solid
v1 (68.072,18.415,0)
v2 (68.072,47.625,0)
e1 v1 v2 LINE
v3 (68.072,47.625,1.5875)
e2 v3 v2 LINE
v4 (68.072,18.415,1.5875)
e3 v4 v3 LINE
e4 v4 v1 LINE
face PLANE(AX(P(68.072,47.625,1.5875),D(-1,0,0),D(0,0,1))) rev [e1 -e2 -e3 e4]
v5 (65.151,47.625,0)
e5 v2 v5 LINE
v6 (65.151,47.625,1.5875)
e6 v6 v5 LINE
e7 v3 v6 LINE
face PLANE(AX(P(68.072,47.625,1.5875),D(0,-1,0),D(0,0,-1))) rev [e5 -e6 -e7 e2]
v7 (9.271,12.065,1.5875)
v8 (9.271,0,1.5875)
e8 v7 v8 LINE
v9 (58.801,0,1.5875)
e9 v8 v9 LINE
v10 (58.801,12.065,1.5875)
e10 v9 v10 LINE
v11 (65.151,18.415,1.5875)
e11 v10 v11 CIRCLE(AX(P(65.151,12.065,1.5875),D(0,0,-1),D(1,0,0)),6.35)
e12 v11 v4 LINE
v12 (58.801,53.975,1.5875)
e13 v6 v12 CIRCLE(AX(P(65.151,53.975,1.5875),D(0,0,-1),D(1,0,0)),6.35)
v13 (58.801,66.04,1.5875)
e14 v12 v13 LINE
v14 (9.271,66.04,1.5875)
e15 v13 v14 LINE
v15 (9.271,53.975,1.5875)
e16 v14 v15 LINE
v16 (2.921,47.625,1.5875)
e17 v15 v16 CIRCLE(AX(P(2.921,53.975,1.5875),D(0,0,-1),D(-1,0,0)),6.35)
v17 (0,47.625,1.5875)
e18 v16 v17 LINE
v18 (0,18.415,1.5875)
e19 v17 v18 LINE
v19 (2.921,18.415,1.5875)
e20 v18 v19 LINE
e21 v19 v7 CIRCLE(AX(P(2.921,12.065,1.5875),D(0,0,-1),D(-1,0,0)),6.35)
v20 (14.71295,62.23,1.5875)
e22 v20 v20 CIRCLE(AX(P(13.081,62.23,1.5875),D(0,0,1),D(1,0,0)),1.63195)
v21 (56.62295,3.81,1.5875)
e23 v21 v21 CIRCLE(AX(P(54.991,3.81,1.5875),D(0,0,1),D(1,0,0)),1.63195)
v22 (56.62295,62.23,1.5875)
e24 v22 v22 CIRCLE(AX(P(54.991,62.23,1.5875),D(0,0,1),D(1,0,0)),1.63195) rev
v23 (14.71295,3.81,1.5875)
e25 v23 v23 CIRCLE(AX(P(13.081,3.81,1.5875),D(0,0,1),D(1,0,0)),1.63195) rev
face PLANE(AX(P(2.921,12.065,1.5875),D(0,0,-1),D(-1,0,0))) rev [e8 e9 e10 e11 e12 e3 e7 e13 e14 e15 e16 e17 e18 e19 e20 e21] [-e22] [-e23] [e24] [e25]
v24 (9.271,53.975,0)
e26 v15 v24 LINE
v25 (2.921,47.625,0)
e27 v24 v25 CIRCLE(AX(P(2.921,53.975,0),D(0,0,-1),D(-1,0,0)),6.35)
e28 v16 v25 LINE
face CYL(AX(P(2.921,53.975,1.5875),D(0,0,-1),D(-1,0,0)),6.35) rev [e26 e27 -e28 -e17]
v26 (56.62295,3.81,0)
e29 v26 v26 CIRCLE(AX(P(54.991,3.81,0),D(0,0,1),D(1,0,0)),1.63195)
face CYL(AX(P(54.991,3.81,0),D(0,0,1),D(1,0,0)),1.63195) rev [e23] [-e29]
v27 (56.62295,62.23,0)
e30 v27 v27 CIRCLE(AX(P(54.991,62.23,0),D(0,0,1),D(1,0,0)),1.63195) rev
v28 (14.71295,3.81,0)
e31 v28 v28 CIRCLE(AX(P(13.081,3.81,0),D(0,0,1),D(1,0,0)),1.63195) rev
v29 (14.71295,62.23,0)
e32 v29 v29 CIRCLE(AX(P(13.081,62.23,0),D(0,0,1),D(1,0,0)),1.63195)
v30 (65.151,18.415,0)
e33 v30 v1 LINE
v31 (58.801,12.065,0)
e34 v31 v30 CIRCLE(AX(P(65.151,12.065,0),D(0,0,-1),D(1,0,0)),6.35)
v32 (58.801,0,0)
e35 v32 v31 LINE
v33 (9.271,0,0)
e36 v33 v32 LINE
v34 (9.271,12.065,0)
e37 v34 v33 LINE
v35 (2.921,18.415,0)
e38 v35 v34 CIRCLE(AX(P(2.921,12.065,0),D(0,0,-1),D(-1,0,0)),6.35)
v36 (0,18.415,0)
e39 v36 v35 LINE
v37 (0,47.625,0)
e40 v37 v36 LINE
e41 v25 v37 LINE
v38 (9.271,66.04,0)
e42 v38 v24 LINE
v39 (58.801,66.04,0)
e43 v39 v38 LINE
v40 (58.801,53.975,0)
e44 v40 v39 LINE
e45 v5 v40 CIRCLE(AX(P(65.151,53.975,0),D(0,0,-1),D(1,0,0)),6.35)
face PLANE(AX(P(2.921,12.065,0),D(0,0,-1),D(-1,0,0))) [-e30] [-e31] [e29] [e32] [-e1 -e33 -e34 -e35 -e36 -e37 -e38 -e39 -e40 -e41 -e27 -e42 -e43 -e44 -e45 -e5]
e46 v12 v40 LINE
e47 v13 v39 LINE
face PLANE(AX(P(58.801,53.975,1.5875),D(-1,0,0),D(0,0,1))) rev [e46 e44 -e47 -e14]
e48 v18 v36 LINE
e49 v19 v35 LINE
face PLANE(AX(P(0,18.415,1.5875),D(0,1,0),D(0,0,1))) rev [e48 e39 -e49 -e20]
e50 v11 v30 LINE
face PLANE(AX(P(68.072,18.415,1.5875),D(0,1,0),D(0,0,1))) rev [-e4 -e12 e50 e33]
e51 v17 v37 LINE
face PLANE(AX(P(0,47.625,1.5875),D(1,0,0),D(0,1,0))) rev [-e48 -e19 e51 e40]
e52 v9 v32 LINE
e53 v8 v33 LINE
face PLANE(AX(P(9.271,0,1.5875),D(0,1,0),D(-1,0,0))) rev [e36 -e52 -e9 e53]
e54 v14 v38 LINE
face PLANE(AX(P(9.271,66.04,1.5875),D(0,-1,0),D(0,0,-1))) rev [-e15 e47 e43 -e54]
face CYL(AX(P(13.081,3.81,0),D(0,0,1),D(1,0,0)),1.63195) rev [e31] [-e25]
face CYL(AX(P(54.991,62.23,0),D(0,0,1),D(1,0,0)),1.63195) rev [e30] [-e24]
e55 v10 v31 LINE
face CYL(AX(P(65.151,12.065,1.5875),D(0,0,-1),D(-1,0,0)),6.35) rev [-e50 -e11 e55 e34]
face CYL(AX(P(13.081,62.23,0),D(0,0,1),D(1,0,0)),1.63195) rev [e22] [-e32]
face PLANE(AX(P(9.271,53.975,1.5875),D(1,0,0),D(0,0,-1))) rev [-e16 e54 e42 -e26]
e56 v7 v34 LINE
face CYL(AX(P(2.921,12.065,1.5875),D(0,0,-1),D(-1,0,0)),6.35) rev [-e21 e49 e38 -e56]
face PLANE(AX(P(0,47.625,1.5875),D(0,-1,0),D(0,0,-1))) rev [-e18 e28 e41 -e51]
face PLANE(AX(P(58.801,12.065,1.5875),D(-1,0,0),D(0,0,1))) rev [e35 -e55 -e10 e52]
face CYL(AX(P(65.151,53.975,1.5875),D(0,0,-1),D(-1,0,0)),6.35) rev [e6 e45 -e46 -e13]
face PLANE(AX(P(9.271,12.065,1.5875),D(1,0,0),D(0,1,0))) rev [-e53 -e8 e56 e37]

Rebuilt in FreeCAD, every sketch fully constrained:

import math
import FreeCAD as App
import Part
import Sketcher

V = App.Vector
Q = App.Units.Quantity

doc = App.newDocument("Part")
body = doc.addObject("PartDesign::Body", "Body")

# Sketch on XY plane
sketch1 = doc.addObject("Sketcher::SketchObject", "Sketch")
body.addObject(sketch1)
sketch1.AttachmentSupport = (doc.XY_Plane, [""])
sketch1.MapMode = "FlatFace"
sketch1.addGeometry([
    Part.LineSegment(V(0, 47.6, 0), V(0, 18.4, 0)),  # 0
    Part.LineSegment(V(0, 18.4, 0), V(2.9, 18.4, 0)),  # 1
    Part.ArcOfCircle(Part.Circle(V(2.9, 12.1, 0), V(0, 0, 1), 6.3), math.radians(0), math.radians(90)),  # 2
    Part.LineSegment(V(9.3, 12.1, 0), V(9.3, 0, 0)),  # 3
    Part.LineSegment(V(9.3, 0, 0), V(58.8, 0, 0)),  # 4
    Part.LineSegment(V(58.8, 0, 0), V(58.8, 12.1, 0)),  # 5
    Part.ArcOfCircle(Part.Circle(V(65.2, 12.1, 0), V(0, 0, 1), 6.3), math.radians(90), math.radians(180)),  # 6
    Part.LineSegment(V(65.2, 18.4, 0), V(68.1, 18.4, 0)),  # 7
    Part.LineSegment(V(68.1, 18.4, 0), V(68.1, 47.6, 0)),  # 8
    Part.LineSegment(V(68.1, 47.6, 0), V(65.2, 47.6, 0)),  # 9
    Part.ArcOfCircle(Part.Circle(V(65.2, 54, 0), V(0, 0, 1), 6.3), math.radians(180), math.radians(270)),  # 10
    Part.LineSegment(V(58.8, 54, 0), V(58.8, 66, 0)),  # 11
    Part.LineSegment(V(58.8, 66, 0), V(9.3, 66, 0)),  # 12
    Part.LineSegment(V(9.3, 66, 0), V(9.3, 54, 0)),  # 13
    Part.ArcOfCircle(Part.Circle(V(2.9, 54, 0), V(0, 0, 1), 6.3), math.radians(-90), math.radians(0)),  # 14
    Part.LineSegment(V(2.9, 47.6, 0), V(0, 47.6, 0)),  # 15
], False)
sketch1.addConstraint([
    Sketcher.Constraint("Coincident", 0, 2, 1, 1),
    Sketcher.Constraint("Tangent", 1, 2, 2, 2),
    Sketcher.Constraint("Tangent", 2, 1, 3, 1),
    Sketcher.Constraint("Coincident", 3, 2, 4, 1),
    Sketcher.Constraint("Coincident", 4, 2, 5, 1),
    Sketcher.Constraint("Tangent", 5, 2, 6, 2),
    Sketcher.Constraint("Tangent", 6, 1, 7, 1),
    Sketcher.Constraint("Coincident", 7, 2, 8, 1),
    Sketcher.Constraint("Coincident", 8, 2, 9, 1),
    Sketcher.Constraint("Tangent", 9, 2, 10, 2),
    Sketcher.Constraint("Tangent", 10, 1, 11, 1),
    Sketcher.Constraint("Coincident", 11, 2, 12, 1),
    Sketcher.Constraint("Coincident", 12, 2, 13, 1),
    Sketcher.Constraint("Tangent", 13, 2, 14, 2),
    Sketcher.Constraint("Tangent", 14, 1, 15, 1),
    Sketcher.Constraint("Coincident", 15, 2, 0, 1),
    Sketcher.Constraint("Vertical", 0),
    Sketcher.Constraint("Horizontal", 1),
    Sketcher.Constraint("Vertical", 3),
    Sketcher.Constraint("Horizontal", 4),
    Sketcher.Constraint("Vertical", 5),
    Sketcher.Constraint("Horizontal", 7),
    Sketcher.Constraint("Vertical", 8),
    Sketcher.Constraint("Horizontal", 9),
    Sketcher.Constraint("Vertical", 11),
    Sketcher.Constraint("Horizontal", 12),
    Sketcher.Constraint("Vertical", 13),
    Sketcher.Constraint("Horizontal", 15),
    Sketcher.Constraint("Equal", 2, 6),
    Sketcher.Constraint("Equal", 6, 10),
    Sketcher.Constraint("Equal", 10, 14),
    Sketcher.Constraint("PointOnObject", 0, 2, -2),
    Sketcher.Constraint("PointOnObject", 3, 2, -1),
    Sketcher.Constraint("Horizontal", 2, 3, 6, 3),
    Sketcher.Constraint("Horizontal", 10, 3, 14, 3),
    Sketcher.Constraint("Vertical", 6, 3, 10, 3),
    Sketcher.Constraint("Vertical", 2, 3, 14, 3),
    Sketcher.Constraint("Equal", 1, 7),
    Sketcher.Constraint("Equal", 5, 11),
    Sketcher.Constraint("Radius", 2, Q("0.25 in")),
    Sketcher.Constraint("DistanceX", 4, 1, 4, 2, Q("1.95 in")),
    Sketcher.Constraint("DistanceY", 0, 2, 0, 1, Q("1.15 in")),
    Sketcher.Constraint("DistanceY", -1, 1, 11, 2, Q("2.6 in")),
    Sketcher.Constraint("DistanceX", 1, 1, 1, 2, Q("0.115 in")),
])
pad1 = doc.addObject("PartDesign::Pad", "Pad")
body.addObject(pad1)
pad1.Profile = sketch1
pad1.Length = Q("0.0625 in")

# Sketch on XY plane
sketch2 = doc.addObject("Sketcher::SketchObject", "Sketch001")
body.addObject(sketch2)
sketch2.AttachmentSupport = (doc.XY_Plane, [""])
sketch2.MapMode = "FlatFace"
sketch2.AttachmentOffset = App.Placement(V(0, 0, 0.0625 * 25.4), App.Rotation())
sketch2.addGeometry([
    Part.Circle(V(55, 62.2, 0), V(0, 0, 1), 1.6),
    Part.Circle(V(55, 3.8, 0), V(0, 0, 1), 1.6),
    Part.Circle(V(13.1, 3.8, 0), V(0, 0, 1), 1.6),
    Part.Circle(V(13.1, 62.2, 0), V(0, 0, 1), 1.6),
], False)
sketch2.addConstraint([
    Sketcher.Constraint("Equal", 0, 1),
    Sketcher.Constraint("Equal", 1, 2),
    Sketcher.Constraint("Equal", 2, 3),
    Sketcher.Constraint("Horizontal", 1, 3, 2, 3),
    Sketcher.Constraint("Horizontal", 0, 3, 3, 3),
    Sketcher.Constraint("Vertical", 0, 3, 1, 3),
    Sketcher.Constraint("Vertical", 2, 3, 3, 3),
    Sketcher.Constraint("Diameter", 0, Q("0.1285 in")),
    Sketcher.Constraint("DistanceY", 1, 3, 0, 3, Q("2.3 in")),
    Sketcher.Constraint("DistanceY", -1, 1, 0, 3, Q("2.45 in")),
    Sketcher.Constraint("DistanceX", 2, 3, 1, 3, Q("1.65 in")),
    Sketcher.Constraint("DistanceX", -1, 1, 0, 3, Q("2.165 in")),
])
pocket1 = doc.addObject("PartDesign::Pocket", "Pocket")
body.addObject(pocket1)
pocket1.Profile = sketch2
pocket1.Type = "ThroughAll"

doc.recompute()
